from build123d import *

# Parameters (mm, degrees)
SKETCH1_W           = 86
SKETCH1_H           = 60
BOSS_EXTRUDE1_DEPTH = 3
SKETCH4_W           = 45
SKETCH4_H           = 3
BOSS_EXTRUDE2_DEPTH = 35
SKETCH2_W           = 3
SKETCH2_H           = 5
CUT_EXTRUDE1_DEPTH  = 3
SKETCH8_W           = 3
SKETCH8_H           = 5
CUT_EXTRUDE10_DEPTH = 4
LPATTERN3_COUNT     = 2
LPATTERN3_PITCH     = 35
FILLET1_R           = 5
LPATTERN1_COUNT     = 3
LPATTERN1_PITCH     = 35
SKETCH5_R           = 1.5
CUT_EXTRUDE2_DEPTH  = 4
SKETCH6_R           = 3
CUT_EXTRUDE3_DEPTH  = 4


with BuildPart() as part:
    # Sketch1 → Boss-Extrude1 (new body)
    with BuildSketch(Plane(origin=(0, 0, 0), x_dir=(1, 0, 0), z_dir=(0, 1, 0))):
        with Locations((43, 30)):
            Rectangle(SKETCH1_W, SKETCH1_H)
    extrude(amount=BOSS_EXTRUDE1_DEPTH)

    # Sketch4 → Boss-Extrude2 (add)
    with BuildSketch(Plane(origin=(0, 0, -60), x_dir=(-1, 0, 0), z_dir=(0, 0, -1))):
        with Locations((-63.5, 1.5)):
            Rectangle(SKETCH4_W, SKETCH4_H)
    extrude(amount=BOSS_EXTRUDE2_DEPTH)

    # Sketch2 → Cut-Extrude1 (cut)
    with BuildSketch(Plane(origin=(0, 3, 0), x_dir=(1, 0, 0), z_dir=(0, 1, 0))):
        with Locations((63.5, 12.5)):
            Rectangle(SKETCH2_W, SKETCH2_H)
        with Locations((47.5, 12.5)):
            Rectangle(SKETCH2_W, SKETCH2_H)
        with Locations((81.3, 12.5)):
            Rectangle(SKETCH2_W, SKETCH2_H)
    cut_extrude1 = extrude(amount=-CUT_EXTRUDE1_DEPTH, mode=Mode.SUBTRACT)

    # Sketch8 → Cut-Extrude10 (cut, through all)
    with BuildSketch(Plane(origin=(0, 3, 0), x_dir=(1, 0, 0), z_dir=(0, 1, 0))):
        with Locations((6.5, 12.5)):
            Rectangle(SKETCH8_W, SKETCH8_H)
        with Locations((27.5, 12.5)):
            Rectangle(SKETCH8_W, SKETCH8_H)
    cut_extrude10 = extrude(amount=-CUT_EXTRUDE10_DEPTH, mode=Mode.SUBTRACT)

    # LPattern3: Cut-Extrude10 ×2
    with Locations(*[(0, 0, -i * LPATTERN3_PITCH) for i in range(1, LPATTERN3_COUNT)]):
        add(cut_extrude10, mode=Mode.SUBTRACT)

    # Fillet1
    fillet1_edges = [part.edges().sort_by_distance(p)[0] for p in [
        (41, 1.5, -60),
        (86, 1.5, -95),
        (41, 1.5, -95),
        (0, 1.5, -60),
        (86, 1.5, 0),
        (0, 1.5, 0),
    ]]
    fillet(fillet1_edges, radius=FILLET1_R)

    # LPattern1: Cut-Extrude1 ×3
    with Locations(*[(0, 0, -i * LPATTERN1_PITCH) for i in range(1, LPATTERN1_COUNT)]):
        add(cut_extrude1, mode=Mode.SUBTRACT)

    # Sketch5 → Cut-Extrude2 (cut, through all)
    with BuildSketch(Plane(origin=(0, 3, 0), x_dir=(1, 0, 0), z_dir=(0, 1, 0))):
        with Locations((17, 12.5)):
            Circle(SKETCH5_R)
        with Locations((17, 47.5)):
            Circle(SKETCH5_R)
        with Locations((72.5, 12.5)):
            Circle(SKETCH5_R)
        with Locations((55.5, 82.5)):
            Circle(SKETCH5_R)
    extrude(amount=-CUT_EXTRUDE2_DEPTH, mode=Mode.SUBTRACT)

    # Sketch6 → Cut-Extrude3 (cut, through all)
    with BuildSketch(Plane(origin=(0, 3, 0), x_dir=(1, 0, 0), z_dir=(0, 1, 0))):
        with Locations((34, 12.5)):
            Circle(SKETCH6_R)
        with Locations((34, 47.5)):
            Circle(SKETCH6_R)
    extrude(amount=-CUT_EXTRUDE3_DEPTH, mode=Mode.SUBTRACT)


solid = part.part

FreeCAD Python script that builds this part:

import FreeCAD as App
import Part
import Sketcher

V = App.Vector
Q = App.Units.Quantity


def edges_at(feature, points):
    """Names of the edges that pass closest to the given points."""
    edges = feature.Shape.Edges
    near = lambda p: min(range(len(edges)), key=lambda i: edges[i].distToShape(Part.Vertex(*p))[0])
    return sorted({f"Edge{near(p) + 1}" for p in points})

doc = App.newDocument("Part")
body = doc.addObject("PartDesign::Body", "Body")

# Sketch on XZ plane
sketch1 = body.newObject("Sketcher::SketchObject", "Sketch")
sketch1.AttachmentSupport = (doc.getObject("XZ_Plane"), [""])
sketch1.MapMode = "FlatFace"
sketch1.addGeometry([
    Part.LineSegment(V(0, -60, 0), V(0, 0, 0)),
    Part.LineSegment(V(0, 0, 0), V(86, 0, 0)),
    Part.LineSegment(V(86, 0, 0), V(86, -60, 0)),
    Part.LineSegment(V(86, -60, 0), V(0, -60, 0)),
], False)
sketch1.addConstraint([
    Sketcher.Constraint("Coincident", 0, 2, 1, 1),
    Sketcher.Constraint("Coincident", 1, 2, 2, 1),
    Sketcher.Constraint("Coincident", 2, 2, 3, 1),
    Sketcher.Constraint("Coincident", 3, 2, 0, 1),
    Sketcher.Constraint("Vertical", 0),
    Sketcher.Constraint("Horizontal", 1),
    Sketcher.Constraint("Vertical", 2),
    Sketcher.Constraint("Horizontal", 3),
    Sketcher.Constraint("Coincident", 0, 2, -1, 1),
    Sketcher.Constraint("DistanceX", 1, 1, 1, 2, Q("86 mm")),
    Sketcher.Constraint("DistanceY", 0, 1, 0, 2, Q("60 mm")),
])
pad1 = body.newObject("PartDesign::Pad", "Pad")
pad1.Profile = sketch1
pad1.Length = 3
pad1.Reversed = True

# Sketch on XY plane
sketch2 = body.newObject("Sketcher::SketchObject", "Sketch001")
sketch2.AttachmentSupport = (doc.getObject("XY_Plane"), [""])
sketch2.MapMode = "FlatFace"
sketch2.AttachmentOffset = App.Placement(V(0, 0, -60), App.Rotation())
sketch2.addGeometry([
    Part.LineSegment(V(86, 3, 0), V(86, 0, 0)),
    Part.LineSegment(V(86, 0, 0), V(41, 0, 0)),
    Part.LineSegment(V(41, 0, 0), V(41, 3, 0)),
    Part.LineSegment(V(41, 3, 0), V(86, 3, 0)),
], False)
sketch2.addConstraint([
    Sketcher.Constraint("Coincident", 0, 2, 1, 1),
    Sketcher.Constraint("Coincident", 1, 2, 2, 1),
    Sketcher.Constraint("Coincident", 2, 2, 3, 1),
    Sketcher.Constraint("Coincident", 3, 2, 0, 1),
    Sketcher.Constraint("Vertical", 0),
    Sketcher.Constraint("Horizontal", 1),
    Sketcher.Constraint("Vertical", 2),
    Sketcher.Constraint("Horizontal", 3),
    Sketcher.Constraint("PointOnObject", 0, 2, -1),
    Sketcher.Constraint("DistanceX", 1, 2, 1, 1, Q("45 mm")),
    Sketcher.Constraint("DistanceY", 0, 2, 0, 1, Q("3 mm")),
    Sketcher.Constraint("DistanceX", -1, 1, 0, 2, Q("86 mm")),
])
pad2 = body.newObject("PartDesign::Pad", "Pad001")
pad2.Profile = sketch2
pad2.Length = 35
pad2.Reversed = True

# Sketch on XZ plane
sketch3 = body.newObject("Sketcher::SketchObject", "Sketch002")
sketch3.AttachmentSupport = (doc.getObject("XZ_Plane"), [""])
sketch3.MapMode = "FlatFace"
sketch3.AttachmentOffset = App.Placement(V(0, 0, -3), App.Rotation())
sketch3.addGeometry([
    Part.LineSegment(V(62, -15, 0), V(62, -10, 0)),  # 0
    Part.LineSegment(V(62, -10, 0), V(65, -10, 0)),  # 1
    Part.LineSegment(V(65, -10, 0), V(65, -15, 0)),  # 2
    Part.LineSegment(V(65, -15, 0), V(62, -15, 0)),  # 3
    Part.LineSegment(V(46, -15, 0), V(46, -10, 0)),  # 4
    Part.LineSegment(V(46, -10, 0), V(49, -10, 0)),  # 5
    Part.LineSegment(V(49, -10, 0), V(49, -15, 0)),  # 6
    Part.LineSegment(V(49, -15, 0), V(46, -15, 0)),  # 7
    Part.LineSegment(V(79.8, -15, 0), V(79.8, -10, 0)),  # 8
    Part.LineSegment(V(79.8, -10, 0), V(82.8, -10, 0)),  # 9
    Part.LineSegment(V(82.8, -10, 0), V(82.8, -15, 0)),  # 10
    Part.LineSegment(V(82.8, -15, 0), V(79.8, -15, 0)),  # 11
], False)
sketch3.addConstraint([
    Sketcher.Constraint("Coincident", 0, 2, 1, 1),
    Sketcher.Constraint("Coincident", 1, 2, 2, 1),
    Sketcher.Constraint("Coincident", 2, 2, 3, 1),
    Sketcher.Constraint("Coincident", 3, 2, 0, 1),
    Sketcher.Constraint("Coincident", 4, 2, 5, 1),
    Sketcher.Constraint("Coincident", 5, 2, 6, 1),
    Sketcher.Constraint("Coincident", 6, 2, 7, 1),
    Sketcher.Constraint("Coincident", 7, 2, 4, 1),
    Sketcher.Constraint("Coincident", 8, 2, 9, 1),
    Sketcher.Constraint("Coincident", 9, 2, 10, 1),
    Sketcher.Constraint("Coincident", 10, 2, 11, 1),
    Sketcher.Constraint("Coincident", 11, 2, 8, 1),
    Sketcher.Constraint("Vertical", 0),
    Sketcher.Constraint("Horizontal", 1),
    Sketcher.Constraint("Vertical", 2),
    Sketcher.Constraint("Horizontal", 3),
    Sketcher.Constraint("Vertical", 4),
    Sketcher.Constraint("Horizontal", 5),
    Sketcher.Constraint("Vertical", 6),
    Sketcher.Constraint("Horizontal", 7),
    Sketcher.Constraint("Vertical", 8),
    Sketcher.Constraint("Horizontal", 9),
    Sketcher.Constraint("Vertical", 10),
    Sketcher.Constraint("Horizontal", 11),
    Sketcher.Constraint("Horizontal", 1, 2, 4, 2),
    Sketcher.Constraint("Horizontal", 3, 2, 6, 2),
    Sketcher.Constraint("Horizontal", 5, 2, 8, 2),
    Sketcher.Constraint("Horizontal", 7, 2, 10, 2),
    Sketcher.Constraint("Equal", 3, 5),
    Sketcher.Constraint("Equal", 7, 9),
    Sketcher.Constraint("DistanceX", 1, 1, 1, 2, Q("3 mm")),
    Sketcher.Constraint("DistanceY", 0, 1, 0, 2, Q("5 mm")),
    Sketcher.Constraint("DistanceX", -1, 1, 0, 2, Q("62 mm")),
    Sketcher.Constraint("DistanceY", 0, 2, -1, 1, Q("10 mm")),
    Sketcher.Constraint("DistanceX", -1, 1, 4, 2, Q("46 mm")),
    Sketcher.Constraint("DistanceX", -1, 1, 8, 2, Q("79.8 mm")),
])
pocket1 = body.newObject("PartDesign::Pocket", "Pocket")
pocket1.Profile = sketch3
pocket1.Length = 3
pocket1.Reversed = True

# Sketch on XZ plane
sketch4 = body.newObject("Sketcher::SketchObject", "Sketch003")
sketch4.AttachmentSupport = (doc.getObject("XZ_Plane"), [""])
sketch4.MapMode = "FlatFace"
sketch4.AttachmentOffset = App.Placement(V(0, 0, -3), App.Rotation())
sketch4.addGeometry([
    Part.LineSegment(V(5, -15, 0), V(5, -10, 0)),  # 0
    Part.LineSegment(V(5, -10, 0), V(8, -10, 0)),  # 1
    Part.LineSegment(V(8, -10, 0), V(8, -15, 0)),  # 2
    Part.LineSegment(V(8, -15, 0), V(5, -15, 0)),  # 3
    Part.LineSegment(V(26, -15, 0), V(26, -10, 0)),  # 4
    Part.LineSegment(V(26, -10, 0), V(29, -10, 0)),  # 5
    Part.LineSegment(V(29, -10, 0), V(29, -15, 0)),  # 6
    Part.LineSegment(V(29, -15, 0), V(26, -15, 0)),  # 7
], False)
sketch4.addConstraint([
    Sketcher.Constraint("Coincident", 0, 2, 1, 1),
    Sketcher.Constraint("Coincident", 1, 2, 2, 1),
    Sketcher.Constraint("Coincident", 2, 2, 3, 1),
    Sketcher.Constraint("Coincident", 3, 2, 0, 1),
    Sketcher.Constraint("Coincident", 4, 2, 5, 1),
    Sketcher.Constraint("Coincident", 5, 2, 6, 1),
    Sketcher.Constraint("Coincident", 6, 2, 7, 1),
    Sketcher.Constraint("Coincident", 7, 2, 4, 1),
    Sketcher.Constraint("Vertical", 0),
    Sketcher.Constraint("Horizontal", 1),
    Sketcher.Constraint("Vertical", 2),
    Sketcher.Constraint("Horizontal", 3),
    Sketcher.Constraint("Vertical", 4),
    Sketcher.Constraint("Horizontal", 5),
    Sketcher.Constraint("Vertical", 6),
    Sketcher.Constraint("Horizontal", 7),
    Sketcher.Constraint("Horizontal", 1, 2, 4, 2),
    Sketcher.Constraint("Horizontal", 3, 2, 6, 2),
    Sketcher.Constraint("Equal", 3, 5),
    Sketcher.Constraint("DistanceX", 1, 1, 1, 2, Q("3 mm")),
    Sketcher.Constraint("DistanceY", 0, 1, 0, 2, Q("5 mm")),
    Sketcher.Constraint("DistanceX", -1, 1, 0, 2, Q("5 mm")),
    Sketcher.Constraint("DistanceY", 0, 2, -1, 1, Q("10 mm")),
    Sketcher.Constraint("DistanceX", -1, 1, 4, 2, Q("26 mm")),
])
pocket2 = body.newObject("PartDesign::Pocket", "Pocket001")
pocket2.Profile = sketch4
pocket2.Type = "ThroughAll"
pocket2.Reversed = True
doc.recompute()

linearpattern = body.newObject("PartDesign::LinearPattern", "LinearPattern")
linearpattern.Originals = [pocket2]
linearpattern.Direction = (doc.getObject("Z_Axis"), [""])
linearpattern.Mode = "offset"
linearpattern.Offset = 35
linearpattern.Occurrences = 2
linearpattern.Reversed = True
body.Tip = linearpattern
doc.recompute()

fillet = body.newObject("PartDesign::Fillet", "Fillet")
fillet.Base = (linearpattern, edges_at(linearpattern, [
    (41, 1.5, -60),
    (86, 1.5, -95),
    (41, 1.5, -95),
    (0, 1.5, -60),
    (86, 1.5, 0),
    (0, 1.5, 0),
]))
fillet.Radius = 5
doc.recompute()

linearpattern2 = body.newObject("PartDesign::LinearPattern", "LinearPattern001")
linearpattern2.Originals = [pocket1]
linearpattern2.Direction = (doc.getObject("Z_Axis"), [""])
linearpattern2.Mode = "offset"
linearpattern2.Offset = 35
linearpattern2.Occurrences = 3
linearpattern2.Reversed = True
body.Tip = linearpattern2

# Sketch on XZ plane
sketch5 = body.newObject("Sketcher::SketchObject", "Sketch004")
sketch5.AttachmentSupport = (doc.getObject("XZ_Plane"), [""])
sketch5.MapMode = "FlatFace"
sketch5.AttachmentOffset = App.Placement(V(0, 0, -3), App.Rotation())
sketch5.addGeometry([
    Part.Circle(V(17, -12.5, 0), V(0, 0, 1), 1.5),
    Part.Circle(V(17, -47.5, 0), V(0, 0, 1), 1.5),
    Part.Circle(V(72.5, -12.5, 0), V(0, 0, 1), 1.5),
    Part.Circle(V(55.5, -82.5, 0), V(0, 0, 1), 1.5),
], False)
sketch5.addConstraint([
    Sketcher.Constraint("Equal", 0, 1),
    Sketcher.Constraint("Equal", 1, 2),
    Sketcher.Constraint("Equal", 2, 3),
    Sketcher.Constraint("Horizontal", 0, 3, 2, 3),
    Sketcher.Constraint("Vertical", 0, 3, 1, 3),
    Sketcher.Constraint("Diameter", 0, Q("3 mm")),
    Sketcher.Constraint("DistanceX", -1, 1, 0, 3, Q("17 mm")),
    Sketcher.Constraint("DistanceY", 1, 3, 0, 3, Q("35 mm")),
    Sketcher.Constraint("DistanceY", 3, 3, 1, 3, Q("35 mm")),
    Sketcher.Constraint("DistanceX", 3, 3, 2, 3, Q("17 mm")),
    Sketcher.Constraint("DistanceY", 0, 3, -1, 1, Q("12.5 mm")),
    Sketcher.Constraint("DistanceX", -1, 1, 2, 3, Q("72.5 mm")),
])
pocket3 = body.newObject("PartDesign::Pocket", "Pocket002")
pocket3.Profile = sketch5
pocket3.Type = "ThroughAll"
pocket3.Reversed = True

# Sketch on XZ plane
sketch6 = body.newObject("Sketcher::SketchObject", "Sketch005")
sketch6.AttachmentSupport = (doc.getObject("XZ_Plane"), [""])
sketch6.MapMode = "FlatFace"
sketch6.AttachmentOffset = App.Placement(V(0, 0, -3), App.Rotation())
sketch6.addGeometry([
    Part.Circle(V(34, -12.5, 0), V(0, 0, 1), 3),
    Part.Circle(V(34, -47.5, 0), V(0, 0, 1), 3),
], False)
sketch6.addConstraint([
    Sketcher.Constraint("Equal", 0, 1),
    Sketcher.Constraint("Vertical", 0, 3, 1, 3),
    Sketcher.Constraint("Diameter", 0, Q("6 mm")),
    Sketcher.Constraint("DistanceX", -1, 1, 0, 3, Q("34 mm")),
    Sketcher.Constraint("DistanceY", 1, 3, 0, 3, Q("35 mm")),
    Sketcher.Constraint("DistanceY", 0, 3, -1, 1, Q("12.5 mm")),
])
pocket4 = body.newObject("PartDesign::Pocket", "Pocket003")
pocket4.Profile = sketch6
pocket4.Type = "ThroughAll"
pocket4.Reversed = True

doc.recompute()
